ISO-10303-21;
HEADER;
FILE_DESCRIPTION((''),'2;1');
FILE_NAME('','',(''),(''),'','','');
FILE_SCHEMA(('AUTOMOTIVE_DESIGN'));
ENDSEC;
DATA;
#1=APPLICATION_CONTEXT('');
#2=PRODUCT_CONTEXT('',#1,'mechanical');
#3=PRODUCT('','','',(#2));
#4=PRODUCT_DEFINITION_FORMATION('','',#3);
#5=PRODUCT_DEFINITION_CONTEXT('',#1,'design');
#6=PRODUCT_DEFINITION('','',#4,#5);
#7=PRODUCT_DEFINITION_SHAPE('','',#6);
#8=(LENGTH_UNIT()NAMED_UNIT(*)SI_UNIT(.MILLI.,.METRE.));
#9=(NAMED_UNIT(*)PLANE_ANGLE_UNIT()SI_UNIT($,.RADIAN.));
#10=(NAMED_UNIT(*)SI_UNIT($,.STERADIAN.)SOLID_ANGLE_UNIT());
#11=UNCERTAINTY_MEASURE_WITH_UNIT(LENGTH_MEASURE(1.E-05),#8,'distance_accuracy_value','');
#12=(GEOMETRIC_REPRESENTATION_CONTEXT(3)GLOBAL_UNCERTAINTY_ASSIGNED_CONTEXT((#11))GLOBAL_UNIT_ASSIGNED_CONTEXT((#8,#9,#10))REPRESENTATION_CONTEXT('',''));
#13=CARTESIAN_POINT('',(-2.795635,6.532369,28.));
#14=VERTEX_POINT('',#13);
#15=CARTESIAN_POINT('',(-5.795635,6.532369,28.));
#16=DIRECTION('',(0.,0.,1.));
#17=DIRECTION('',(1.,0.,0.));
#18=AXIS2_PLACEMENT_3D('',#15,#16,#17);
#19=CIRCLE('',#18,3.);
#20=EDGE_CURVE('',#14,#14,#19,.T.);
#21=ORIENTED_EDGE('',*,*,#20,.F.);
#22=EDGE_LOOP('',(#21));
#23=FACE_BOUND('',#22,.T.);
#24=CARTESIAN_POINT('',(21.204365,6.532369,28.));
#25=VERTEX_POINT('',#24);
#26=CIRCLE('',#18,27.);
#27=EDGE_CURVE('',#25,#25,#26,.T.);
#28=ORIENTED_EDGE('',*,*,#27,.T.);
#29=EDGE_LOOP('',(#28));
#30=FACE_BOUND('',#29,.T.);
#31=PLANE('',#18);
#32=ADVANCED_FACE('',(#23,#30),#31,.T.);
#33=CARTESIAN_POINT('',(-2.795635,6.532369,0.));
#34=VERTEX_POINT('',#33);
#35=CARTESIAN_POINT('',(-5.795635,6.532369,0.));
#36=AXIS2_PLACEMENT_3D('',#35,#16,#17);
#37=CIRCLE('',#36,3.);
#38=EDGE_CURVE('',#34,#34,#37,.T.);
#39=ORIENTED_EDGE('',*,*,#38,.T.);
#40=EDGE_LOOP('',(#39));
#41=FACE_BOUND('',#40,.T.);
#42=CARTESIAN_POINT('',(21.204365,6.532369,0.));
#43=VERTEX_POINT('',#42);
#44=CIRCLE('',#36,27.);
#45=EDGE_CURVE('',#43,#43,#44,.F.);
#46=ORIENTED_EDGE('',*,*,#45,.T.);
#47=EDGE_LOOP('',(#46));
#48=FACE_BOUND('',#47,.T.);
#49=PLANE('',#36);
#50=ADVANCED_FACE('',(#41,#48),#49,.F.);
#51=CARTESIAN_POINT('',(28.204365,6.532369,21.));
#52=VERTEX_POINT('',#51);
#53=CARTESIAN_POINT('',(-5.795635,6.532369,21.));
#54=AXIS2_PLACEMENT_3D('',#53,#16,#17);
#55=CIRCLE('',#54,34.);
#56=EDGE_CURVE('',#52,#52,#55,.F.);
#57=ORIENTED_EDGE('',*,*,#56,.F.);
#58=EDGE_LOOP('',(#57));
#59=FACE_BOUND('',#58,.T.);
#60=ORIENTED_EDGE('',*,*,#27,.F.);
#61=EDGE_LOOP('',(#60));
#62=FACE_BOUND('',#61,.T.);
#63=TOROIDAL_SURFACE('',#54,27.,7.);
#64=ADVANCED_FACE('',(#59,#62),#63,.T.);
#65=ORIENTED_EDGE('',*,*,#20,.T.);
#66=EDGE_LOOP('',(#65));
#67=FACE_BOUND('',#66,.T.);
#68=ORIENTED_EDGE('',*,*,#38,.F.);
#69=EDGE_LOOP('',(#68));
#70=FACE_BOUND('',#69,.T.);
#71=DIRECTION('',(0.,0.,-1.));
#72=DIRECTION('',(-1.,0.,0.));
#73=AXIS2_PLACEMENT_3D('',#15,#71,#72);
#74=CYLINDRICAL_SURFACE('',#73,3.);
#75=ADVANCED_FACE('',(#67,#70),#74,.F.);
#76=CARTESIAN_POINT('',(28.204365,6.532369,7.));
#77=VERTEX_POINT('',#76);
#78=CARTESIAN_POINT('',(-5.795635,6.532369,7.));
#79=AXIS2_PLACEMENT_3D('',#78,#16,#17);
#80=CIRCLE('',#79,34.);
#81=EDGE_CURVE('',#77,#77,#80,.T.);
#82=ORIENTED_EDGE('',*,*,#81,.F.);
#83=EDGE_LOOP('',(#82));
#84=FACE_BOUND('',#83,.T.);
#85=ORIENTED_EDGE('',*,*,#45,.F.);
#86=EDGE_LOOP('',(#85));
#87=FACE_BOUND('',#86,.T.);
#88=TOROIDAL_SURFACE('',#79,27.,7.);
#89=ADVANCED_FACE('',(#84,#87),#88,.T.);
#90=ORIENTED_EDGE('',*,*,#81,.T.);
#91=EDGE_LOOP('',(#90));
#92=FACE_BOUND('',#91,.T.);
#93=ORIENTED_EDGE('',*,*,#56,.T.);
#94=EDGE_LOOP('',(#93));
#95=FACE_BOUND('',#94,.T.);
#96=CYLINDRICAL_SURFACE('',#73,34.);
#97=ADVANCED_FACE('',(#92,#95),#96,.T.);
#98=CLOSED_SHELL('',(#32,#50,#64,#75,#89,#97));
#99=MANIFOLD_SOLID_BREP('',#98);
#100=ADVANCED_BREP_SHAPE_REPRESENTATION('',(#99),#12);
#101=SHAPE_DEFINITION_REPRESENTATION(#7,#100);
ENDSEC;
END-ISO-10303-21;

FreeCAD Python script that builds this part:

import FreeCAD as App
import Part
import Sketcher

V = App.Vector


def edges_at(feature, points):
    """Names of the edges that pass closest to the given points."""
    edges = feature.Shape.Edges
    near = lambda p: min(range(len(edges)), key=lambda i: edges[i].distToShape(Part.Vertex(*p))[0])
    return sorted({f"Edge{near(p) + 1}" for p in points})

doc = App.newDocument("Part")
body = doc.addObject("PartDesign::Body", "Body")

sketch1 = doc.addObject("Sketcher::SketchObject", "Sketch")
body.addObject(sketch1)
sketch1.AttachmentSupport = (doc.XY_Plane, [""])
sketch1.MapMode = "FlatFace"
sketch1.addGeometry(Part.Circle(V(-5.8, 6.5, 0), V(0, 0, 1), 34), False)
sketch1.addGeometry(Part.Circle(V(-5.8, 6.5, 0), V(0, 0, 1), 3), False)
sketch1.addConstraint(Sketcher.Constraint("Coincident", 1, 3, 0, 3))
sketch1.addConstraint(Sketcher.Constraint("Diameter", 0, 68.0))
sketch1.addConstraint(Sketcher.Constraint("Diameter", 1, 6.0))
sketch1.addConstraint(Sketcher.Constraint("DistanceY", -1, 1, 0, 3, 6.532369))
sketch1.addConstraint(Sketcher.Constraint("DistanceX", 0, 3, -1, 1, 5.795635))
pad1 = doc.addObject("PartDesign::Pad", "Pad")
body.addObject(pad1)
pad1.Profile = sketch1
pad1.Length = 28
doc.recompute()

fillet = doc.addObject("PartDesign::Fillet", "Fillet")
body.addObject(fillet)
fillet.Base = (pad1, edges_at(pad1, [(-39.796, 6.532, 0), (-39.796, 6.532, 28)]))
fillet.Radius = 7

doc.recompute()
